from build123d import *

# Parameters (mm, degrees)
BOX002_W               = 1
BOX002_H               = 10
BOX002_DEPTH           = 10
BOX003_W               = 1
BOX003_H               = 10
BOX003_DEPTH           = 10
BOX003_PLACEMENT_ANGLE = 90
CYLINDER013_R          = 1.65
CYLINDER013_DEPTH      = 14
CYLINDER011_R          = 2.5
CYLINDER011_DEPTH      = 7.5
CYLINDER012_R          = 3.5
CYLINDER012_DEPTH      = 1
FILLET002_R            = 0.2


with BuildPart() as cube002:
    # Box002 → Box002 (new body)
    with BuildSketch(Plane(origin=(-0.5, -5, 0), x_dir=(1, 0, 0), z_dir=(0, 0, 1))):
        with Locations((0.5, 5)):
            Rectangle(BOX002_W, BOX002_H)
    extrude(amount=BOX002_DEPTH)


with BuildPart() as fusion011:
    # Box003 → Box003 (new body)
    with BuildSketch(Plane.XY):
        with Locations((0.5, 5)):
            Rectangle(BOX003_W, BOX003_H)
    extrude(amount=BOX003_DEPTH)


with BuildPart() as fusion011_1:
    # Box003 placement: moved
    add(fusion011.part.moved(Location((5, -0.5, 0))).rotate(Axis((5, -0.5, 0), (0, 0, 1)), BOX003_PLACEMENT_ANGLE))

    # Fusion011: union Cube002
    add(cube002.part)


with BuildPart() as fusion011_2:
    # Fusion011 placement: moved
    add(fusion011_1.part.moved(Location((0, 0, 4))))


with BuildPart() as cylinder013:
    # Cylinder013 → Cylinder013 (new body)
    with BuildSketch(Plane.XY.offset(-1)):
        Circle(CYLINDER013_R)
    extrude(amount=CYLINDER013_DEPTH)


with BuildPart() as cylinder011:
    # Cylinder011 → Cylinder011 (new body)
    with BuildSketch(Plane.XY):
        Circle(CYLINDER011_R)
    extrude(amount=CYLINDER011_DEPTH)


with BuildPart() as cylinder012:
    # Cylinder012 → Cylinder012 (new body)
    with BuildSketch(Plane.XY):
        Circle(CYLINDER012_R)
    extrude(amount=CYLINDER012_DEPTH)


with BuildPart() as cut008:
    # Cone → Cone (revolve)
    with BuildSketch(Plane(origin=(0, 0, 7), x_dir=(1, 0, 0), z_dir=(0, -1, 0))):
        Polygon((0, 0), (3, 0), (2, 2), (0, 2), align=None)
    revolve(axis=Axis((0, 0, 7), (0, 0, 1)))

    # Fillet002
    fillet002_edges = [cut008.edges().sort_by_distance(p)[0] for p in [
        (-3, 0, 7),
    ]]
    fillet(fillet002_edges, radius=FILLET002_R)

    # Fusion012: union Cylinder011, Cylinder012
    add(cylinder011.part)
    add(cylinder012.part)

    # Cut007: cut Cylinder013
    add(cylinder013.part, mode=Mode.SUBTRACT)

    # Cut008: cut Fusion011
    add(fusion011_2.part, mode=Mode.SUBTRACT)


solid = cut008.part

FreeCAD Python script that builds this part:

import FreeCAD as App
import Part
import Sketcher


def edges_at(feature, points):
    """Names of the edges that pass closest to the given points."""
    edges = feature.Shape.Edges
    near = lambda p: min(range(len(edges)), key=lambda i: edges[i].distToShape(Part.Vertex(*p))[0])
    return sorted({f"Edge{near(p) + 1}" for p in points})


def add_polygon(sketch, points):
    """Adds a closed chain of lines whose ends are joined by coincident constraints."""
    first, n = sketch.GeometryCount, len(points)
    for a, b in zip(points, points[1:] + points[:1]):
        sketch.addGeometry(Part.LineSegment(App.Vector(*a, 0), App.Vector(*b, 0)), False)
    for i in range(n):
        sketch.addConstraint(Sketcher.Constraint("Coincident", first + i, 2, first + (i + 1) % n, 1))

doc = App.newDocument("Part")
body = doc.addObject("PartDesign::Body", "Body")

sketch1 = body.newObject("Sketcher::SketchObject", "Sketch")
sketch1.AttachmentSupport = (doc.getObject("XY_Plane"), [""])
sketch1.MapMode = "FlatFace"
add_polygon(sketch1, [(-0.5, 5), (-0.5, -5), (0.5, -5), (0.5, 5)])
sketch1.addConstraint(Sketcher.Constraint("Vertical", 0))
sketch1.addConstraint(Sketcher.Constraint("Horizontal", 1))
sketch1.addConstraint(Sketcher.Constraint("Vertical", 2))
sketch1.addConstraint(Sketcher.Constraint("Horizontal", 3))
sketch1.addConstraint(Sketcher.Constraint("Symmetric", 0, 2, 2, 2, -1, 1))
sketch1.addConstraint(Sketcher.Constraint("DistanceX", 1, 1, 1, 2, 1.0))
sketch1.addConstraint(Sketcher.Constraint("DistanceY", 0, 2, 0, 1, 10.0))
pad1 = body.newObject("PartDesign::Pad", "Pad")
pad1.Profile = sketch1
pad1.Length = 10
body2 = doc.addObject("PartDesign::Body", "Body001")

sketch2 = body2.newObject("Sketcher::SketchObject", "Sketch001")
sketch2.AttachmentSupport = (doc.getObject("XY_Plane001"), [""])
sketch2.MapMode = "FlatFace"
add_polygon(sketch2, [(0, 10), (0, 0), (1, 0), (1, 10)])
sketch2.addConstraint(Sketcher.Constraint("Vertical", 0))
sketch2.addConstraint(Sketcher.Constraint("Horizontal", 1))
sketch2.addConstraint(Sketcher.Constraint("Vertical", 2))
sketch2.addConstraint(Sketcher.Constraint("Horizontal", 3))
sketch2.addConstraint(Sketcher.Constraint("Coincident", 0, 2, -1, 1))
sketch2.addConstraint(Sketcher.Constraint("DistanceX", 1, 1, 1, 2, 1.0))
sketch2.addConstraint(Sketcher.Constraint("DistanceY", 0, 2, 0, 1, 10.0))
pad2 = body2.newObject("PartDesign::Pad", "Pad001")
pad2.Profile = sketch2
pad2.Length = 10
body3 = doc.addObject("PartDesign::Body", "Body002")
doc.recompute()

body2.Placement = App.Placement(App.Vector(5, -0.5, 0), App.Rotation(App.Vector(0, 0, 1), 90))
boolean = body3.newObject("PartDesign::Boolean", "Boolean")
boolean.Type = "Fuse"
boolean.addObjects([body2])
doc.recompute()

boolean2 = body3.newObject("PartDesign::Boolean", "Boolean001")
boolean2.Type = "Fuse"
boolean2.addObjects([body])
body4 = doc.addObject("PartDesign::Body", "Body003")
doc.recompute()

body3.Placement = App.Placement(App.Vector(0, 0, 4), App.Rotation(App.Vector(0, 0, 1), 0))
boolean3 = body4.newObject("PartDesign::Boolean", "Boolean002")
boolean3.Type = "Fuse"
boolean3.addObjects([body3])
body5 = doc.addObject("PartDesign::Body", "Body004")

sketch3 = body5.newObject("Sketcher::SketchObject", "Sketch002")
sketch3.AttachmentSupport = (doc.getObject("XY_Plane004"), [""])
sketch3.MapMode = "FlatFace"
sketch3.AttachmentOffset = App.Placement(App.Vector(0, 0, -1), App.Rotation())
sketch3.addGeometry(Part.Circle(App.Vector(0, 0, 0), App.Vector(0, 0, 1), 1.65), False)
sketch3.addConstraint(Sketcher.Constraint("Coincident", 0, 3, -1, 1))
sketch3.addConstraint(Sketcher.Constraint("Diameter", 0, 3.3))
pad3 = body5.newObject("PartDesign::Pad", "Pad002")
pad3.Profile = sketch3
pad3.Length = 14
body6 = doc.addObject("PartDesign::Body", "Body005")

sketch4 = body6.newObject("Sketcher::SketchObject", "Sketch003")
sketch4.AttachmentSupport = (doc.getObject("XY_Plane005"), [""])
sketch4.MapMode = "FlatFace"
sketch4.addGeometry(Part.Circle(App.Vector(0, 0, 0), App.Vector(0, 0, 1), 2.5), False)
sketch4.addConstraint(Sketcher.Constraint("Coincident", 0, 3, -1, 1))
sketch4.addConstraint(Sketcher.Constraint("Diameter", 0, 5.0))
pad4 = body6.newObject("PartDesign::Pad", "Pad003")
pad4.Profile = sketch4
pad4.Length = 7.5
body7 = doc.addObject("PartDesign::Body", "Body006")

sketch5 = body7.newObject("Sketcher::SketchObject", "Sketch004")
sketch5.AttachmentSupport = (doc.getObject("XY_Plane006"), [""])
sketch5.MapMode = "FlatFace"
sketch5.addGeometry(Part.Circle(App.Vector(0, 0, 0), App.Vector(0, 0, 1), 3.5), False)
sketch5.addConstraint(Sketcher.Constraint("Coincident", 0, 3, -1, 1))
sketch5.addConstraint(Sketcher.Constraint("Diameter", 0, 7.0))
pad5 = body7.newObject("PartDesign::Pad", "Pad004")
pad5.Profile = sketch5
pad5.Length = 1
body8 = doc.addObject("PartDesign::Body", "Body007")

sketch6 = body8.newObject("Sketcher::SketchObject", "Sketch005")
sketch6.AttachmentSupport = (doc.getObject("XZ_Plane007"), [""])
sketch6.MapMode = "FlatFace"
add_polygon(sketch6, [(0, 7), (3, 7), (2, 9), (0, 9)])
sketch6.addConstraint(Sketcher.Constraint("Horizontal", 0))
sketch6.addConstraint(Sketcher.Constraint("Horizontal", 2))
sketch6.addConstraint(Sketcher.Constraint("Vertical", 3))
sketch6.addConstraint(Sketcher.Constraint("PointOnObject", 2, 2, -2))
sketch6.addConstraint(Sketcher.Constraint("Equal", 2, 3))
sketch6.addConstraint(Sketcher.Constraint("DistanceX", 0, 1, 0, 2, 3.0))
sketch6.addConstraint(Sketcher.Constraint("DistanceX", 2, 2, 2, 1, 2.0))
sketch6.addConstraint(Sketcher.Constraint("DistanceY", -1, 1, 0, 2, 7.0))
revolution = body8.newObject("PartDesign::Revolution", "Revolution")
revolution.Profile = sketch6
revolution.ReferenceAxis = (sketch6, ["V_Axis"])
revolution.Angle = 360
doc.recompute()

fillet = body8.newObject("PartDesign::Fillet", "Fillet")
fillet.Base = (revolution, edges_at(revolution, [(-3, 0, 7)]))
fillet.Radius = 0.2
doc.recompute()

boolean4 = body8.newObject("PartDesign::Boolean", "Boolean003")
boolean4.Type = "Fuse"
boolean4.addObjects([body6])
doc.recompute()

boolean5 = body8.newObject("PartDesign::Boolean", "Boolean004")
boolean5.Type = "Fuse"
boolean5.addObjects([body7])
doc.recompute()

boolean6 = body8.newObject("PartDesign::Boolean", "Boolean005")
boolean6.Type = "Cut"
boolean6.addObjects([body5])
doc.recompute()

boolean7 = body8.newObject("PartDesign::Boolean", "Boolean006")
boolean7.Type = "Cut"
boolean7.addObjects([body4])

doc.recompute()
